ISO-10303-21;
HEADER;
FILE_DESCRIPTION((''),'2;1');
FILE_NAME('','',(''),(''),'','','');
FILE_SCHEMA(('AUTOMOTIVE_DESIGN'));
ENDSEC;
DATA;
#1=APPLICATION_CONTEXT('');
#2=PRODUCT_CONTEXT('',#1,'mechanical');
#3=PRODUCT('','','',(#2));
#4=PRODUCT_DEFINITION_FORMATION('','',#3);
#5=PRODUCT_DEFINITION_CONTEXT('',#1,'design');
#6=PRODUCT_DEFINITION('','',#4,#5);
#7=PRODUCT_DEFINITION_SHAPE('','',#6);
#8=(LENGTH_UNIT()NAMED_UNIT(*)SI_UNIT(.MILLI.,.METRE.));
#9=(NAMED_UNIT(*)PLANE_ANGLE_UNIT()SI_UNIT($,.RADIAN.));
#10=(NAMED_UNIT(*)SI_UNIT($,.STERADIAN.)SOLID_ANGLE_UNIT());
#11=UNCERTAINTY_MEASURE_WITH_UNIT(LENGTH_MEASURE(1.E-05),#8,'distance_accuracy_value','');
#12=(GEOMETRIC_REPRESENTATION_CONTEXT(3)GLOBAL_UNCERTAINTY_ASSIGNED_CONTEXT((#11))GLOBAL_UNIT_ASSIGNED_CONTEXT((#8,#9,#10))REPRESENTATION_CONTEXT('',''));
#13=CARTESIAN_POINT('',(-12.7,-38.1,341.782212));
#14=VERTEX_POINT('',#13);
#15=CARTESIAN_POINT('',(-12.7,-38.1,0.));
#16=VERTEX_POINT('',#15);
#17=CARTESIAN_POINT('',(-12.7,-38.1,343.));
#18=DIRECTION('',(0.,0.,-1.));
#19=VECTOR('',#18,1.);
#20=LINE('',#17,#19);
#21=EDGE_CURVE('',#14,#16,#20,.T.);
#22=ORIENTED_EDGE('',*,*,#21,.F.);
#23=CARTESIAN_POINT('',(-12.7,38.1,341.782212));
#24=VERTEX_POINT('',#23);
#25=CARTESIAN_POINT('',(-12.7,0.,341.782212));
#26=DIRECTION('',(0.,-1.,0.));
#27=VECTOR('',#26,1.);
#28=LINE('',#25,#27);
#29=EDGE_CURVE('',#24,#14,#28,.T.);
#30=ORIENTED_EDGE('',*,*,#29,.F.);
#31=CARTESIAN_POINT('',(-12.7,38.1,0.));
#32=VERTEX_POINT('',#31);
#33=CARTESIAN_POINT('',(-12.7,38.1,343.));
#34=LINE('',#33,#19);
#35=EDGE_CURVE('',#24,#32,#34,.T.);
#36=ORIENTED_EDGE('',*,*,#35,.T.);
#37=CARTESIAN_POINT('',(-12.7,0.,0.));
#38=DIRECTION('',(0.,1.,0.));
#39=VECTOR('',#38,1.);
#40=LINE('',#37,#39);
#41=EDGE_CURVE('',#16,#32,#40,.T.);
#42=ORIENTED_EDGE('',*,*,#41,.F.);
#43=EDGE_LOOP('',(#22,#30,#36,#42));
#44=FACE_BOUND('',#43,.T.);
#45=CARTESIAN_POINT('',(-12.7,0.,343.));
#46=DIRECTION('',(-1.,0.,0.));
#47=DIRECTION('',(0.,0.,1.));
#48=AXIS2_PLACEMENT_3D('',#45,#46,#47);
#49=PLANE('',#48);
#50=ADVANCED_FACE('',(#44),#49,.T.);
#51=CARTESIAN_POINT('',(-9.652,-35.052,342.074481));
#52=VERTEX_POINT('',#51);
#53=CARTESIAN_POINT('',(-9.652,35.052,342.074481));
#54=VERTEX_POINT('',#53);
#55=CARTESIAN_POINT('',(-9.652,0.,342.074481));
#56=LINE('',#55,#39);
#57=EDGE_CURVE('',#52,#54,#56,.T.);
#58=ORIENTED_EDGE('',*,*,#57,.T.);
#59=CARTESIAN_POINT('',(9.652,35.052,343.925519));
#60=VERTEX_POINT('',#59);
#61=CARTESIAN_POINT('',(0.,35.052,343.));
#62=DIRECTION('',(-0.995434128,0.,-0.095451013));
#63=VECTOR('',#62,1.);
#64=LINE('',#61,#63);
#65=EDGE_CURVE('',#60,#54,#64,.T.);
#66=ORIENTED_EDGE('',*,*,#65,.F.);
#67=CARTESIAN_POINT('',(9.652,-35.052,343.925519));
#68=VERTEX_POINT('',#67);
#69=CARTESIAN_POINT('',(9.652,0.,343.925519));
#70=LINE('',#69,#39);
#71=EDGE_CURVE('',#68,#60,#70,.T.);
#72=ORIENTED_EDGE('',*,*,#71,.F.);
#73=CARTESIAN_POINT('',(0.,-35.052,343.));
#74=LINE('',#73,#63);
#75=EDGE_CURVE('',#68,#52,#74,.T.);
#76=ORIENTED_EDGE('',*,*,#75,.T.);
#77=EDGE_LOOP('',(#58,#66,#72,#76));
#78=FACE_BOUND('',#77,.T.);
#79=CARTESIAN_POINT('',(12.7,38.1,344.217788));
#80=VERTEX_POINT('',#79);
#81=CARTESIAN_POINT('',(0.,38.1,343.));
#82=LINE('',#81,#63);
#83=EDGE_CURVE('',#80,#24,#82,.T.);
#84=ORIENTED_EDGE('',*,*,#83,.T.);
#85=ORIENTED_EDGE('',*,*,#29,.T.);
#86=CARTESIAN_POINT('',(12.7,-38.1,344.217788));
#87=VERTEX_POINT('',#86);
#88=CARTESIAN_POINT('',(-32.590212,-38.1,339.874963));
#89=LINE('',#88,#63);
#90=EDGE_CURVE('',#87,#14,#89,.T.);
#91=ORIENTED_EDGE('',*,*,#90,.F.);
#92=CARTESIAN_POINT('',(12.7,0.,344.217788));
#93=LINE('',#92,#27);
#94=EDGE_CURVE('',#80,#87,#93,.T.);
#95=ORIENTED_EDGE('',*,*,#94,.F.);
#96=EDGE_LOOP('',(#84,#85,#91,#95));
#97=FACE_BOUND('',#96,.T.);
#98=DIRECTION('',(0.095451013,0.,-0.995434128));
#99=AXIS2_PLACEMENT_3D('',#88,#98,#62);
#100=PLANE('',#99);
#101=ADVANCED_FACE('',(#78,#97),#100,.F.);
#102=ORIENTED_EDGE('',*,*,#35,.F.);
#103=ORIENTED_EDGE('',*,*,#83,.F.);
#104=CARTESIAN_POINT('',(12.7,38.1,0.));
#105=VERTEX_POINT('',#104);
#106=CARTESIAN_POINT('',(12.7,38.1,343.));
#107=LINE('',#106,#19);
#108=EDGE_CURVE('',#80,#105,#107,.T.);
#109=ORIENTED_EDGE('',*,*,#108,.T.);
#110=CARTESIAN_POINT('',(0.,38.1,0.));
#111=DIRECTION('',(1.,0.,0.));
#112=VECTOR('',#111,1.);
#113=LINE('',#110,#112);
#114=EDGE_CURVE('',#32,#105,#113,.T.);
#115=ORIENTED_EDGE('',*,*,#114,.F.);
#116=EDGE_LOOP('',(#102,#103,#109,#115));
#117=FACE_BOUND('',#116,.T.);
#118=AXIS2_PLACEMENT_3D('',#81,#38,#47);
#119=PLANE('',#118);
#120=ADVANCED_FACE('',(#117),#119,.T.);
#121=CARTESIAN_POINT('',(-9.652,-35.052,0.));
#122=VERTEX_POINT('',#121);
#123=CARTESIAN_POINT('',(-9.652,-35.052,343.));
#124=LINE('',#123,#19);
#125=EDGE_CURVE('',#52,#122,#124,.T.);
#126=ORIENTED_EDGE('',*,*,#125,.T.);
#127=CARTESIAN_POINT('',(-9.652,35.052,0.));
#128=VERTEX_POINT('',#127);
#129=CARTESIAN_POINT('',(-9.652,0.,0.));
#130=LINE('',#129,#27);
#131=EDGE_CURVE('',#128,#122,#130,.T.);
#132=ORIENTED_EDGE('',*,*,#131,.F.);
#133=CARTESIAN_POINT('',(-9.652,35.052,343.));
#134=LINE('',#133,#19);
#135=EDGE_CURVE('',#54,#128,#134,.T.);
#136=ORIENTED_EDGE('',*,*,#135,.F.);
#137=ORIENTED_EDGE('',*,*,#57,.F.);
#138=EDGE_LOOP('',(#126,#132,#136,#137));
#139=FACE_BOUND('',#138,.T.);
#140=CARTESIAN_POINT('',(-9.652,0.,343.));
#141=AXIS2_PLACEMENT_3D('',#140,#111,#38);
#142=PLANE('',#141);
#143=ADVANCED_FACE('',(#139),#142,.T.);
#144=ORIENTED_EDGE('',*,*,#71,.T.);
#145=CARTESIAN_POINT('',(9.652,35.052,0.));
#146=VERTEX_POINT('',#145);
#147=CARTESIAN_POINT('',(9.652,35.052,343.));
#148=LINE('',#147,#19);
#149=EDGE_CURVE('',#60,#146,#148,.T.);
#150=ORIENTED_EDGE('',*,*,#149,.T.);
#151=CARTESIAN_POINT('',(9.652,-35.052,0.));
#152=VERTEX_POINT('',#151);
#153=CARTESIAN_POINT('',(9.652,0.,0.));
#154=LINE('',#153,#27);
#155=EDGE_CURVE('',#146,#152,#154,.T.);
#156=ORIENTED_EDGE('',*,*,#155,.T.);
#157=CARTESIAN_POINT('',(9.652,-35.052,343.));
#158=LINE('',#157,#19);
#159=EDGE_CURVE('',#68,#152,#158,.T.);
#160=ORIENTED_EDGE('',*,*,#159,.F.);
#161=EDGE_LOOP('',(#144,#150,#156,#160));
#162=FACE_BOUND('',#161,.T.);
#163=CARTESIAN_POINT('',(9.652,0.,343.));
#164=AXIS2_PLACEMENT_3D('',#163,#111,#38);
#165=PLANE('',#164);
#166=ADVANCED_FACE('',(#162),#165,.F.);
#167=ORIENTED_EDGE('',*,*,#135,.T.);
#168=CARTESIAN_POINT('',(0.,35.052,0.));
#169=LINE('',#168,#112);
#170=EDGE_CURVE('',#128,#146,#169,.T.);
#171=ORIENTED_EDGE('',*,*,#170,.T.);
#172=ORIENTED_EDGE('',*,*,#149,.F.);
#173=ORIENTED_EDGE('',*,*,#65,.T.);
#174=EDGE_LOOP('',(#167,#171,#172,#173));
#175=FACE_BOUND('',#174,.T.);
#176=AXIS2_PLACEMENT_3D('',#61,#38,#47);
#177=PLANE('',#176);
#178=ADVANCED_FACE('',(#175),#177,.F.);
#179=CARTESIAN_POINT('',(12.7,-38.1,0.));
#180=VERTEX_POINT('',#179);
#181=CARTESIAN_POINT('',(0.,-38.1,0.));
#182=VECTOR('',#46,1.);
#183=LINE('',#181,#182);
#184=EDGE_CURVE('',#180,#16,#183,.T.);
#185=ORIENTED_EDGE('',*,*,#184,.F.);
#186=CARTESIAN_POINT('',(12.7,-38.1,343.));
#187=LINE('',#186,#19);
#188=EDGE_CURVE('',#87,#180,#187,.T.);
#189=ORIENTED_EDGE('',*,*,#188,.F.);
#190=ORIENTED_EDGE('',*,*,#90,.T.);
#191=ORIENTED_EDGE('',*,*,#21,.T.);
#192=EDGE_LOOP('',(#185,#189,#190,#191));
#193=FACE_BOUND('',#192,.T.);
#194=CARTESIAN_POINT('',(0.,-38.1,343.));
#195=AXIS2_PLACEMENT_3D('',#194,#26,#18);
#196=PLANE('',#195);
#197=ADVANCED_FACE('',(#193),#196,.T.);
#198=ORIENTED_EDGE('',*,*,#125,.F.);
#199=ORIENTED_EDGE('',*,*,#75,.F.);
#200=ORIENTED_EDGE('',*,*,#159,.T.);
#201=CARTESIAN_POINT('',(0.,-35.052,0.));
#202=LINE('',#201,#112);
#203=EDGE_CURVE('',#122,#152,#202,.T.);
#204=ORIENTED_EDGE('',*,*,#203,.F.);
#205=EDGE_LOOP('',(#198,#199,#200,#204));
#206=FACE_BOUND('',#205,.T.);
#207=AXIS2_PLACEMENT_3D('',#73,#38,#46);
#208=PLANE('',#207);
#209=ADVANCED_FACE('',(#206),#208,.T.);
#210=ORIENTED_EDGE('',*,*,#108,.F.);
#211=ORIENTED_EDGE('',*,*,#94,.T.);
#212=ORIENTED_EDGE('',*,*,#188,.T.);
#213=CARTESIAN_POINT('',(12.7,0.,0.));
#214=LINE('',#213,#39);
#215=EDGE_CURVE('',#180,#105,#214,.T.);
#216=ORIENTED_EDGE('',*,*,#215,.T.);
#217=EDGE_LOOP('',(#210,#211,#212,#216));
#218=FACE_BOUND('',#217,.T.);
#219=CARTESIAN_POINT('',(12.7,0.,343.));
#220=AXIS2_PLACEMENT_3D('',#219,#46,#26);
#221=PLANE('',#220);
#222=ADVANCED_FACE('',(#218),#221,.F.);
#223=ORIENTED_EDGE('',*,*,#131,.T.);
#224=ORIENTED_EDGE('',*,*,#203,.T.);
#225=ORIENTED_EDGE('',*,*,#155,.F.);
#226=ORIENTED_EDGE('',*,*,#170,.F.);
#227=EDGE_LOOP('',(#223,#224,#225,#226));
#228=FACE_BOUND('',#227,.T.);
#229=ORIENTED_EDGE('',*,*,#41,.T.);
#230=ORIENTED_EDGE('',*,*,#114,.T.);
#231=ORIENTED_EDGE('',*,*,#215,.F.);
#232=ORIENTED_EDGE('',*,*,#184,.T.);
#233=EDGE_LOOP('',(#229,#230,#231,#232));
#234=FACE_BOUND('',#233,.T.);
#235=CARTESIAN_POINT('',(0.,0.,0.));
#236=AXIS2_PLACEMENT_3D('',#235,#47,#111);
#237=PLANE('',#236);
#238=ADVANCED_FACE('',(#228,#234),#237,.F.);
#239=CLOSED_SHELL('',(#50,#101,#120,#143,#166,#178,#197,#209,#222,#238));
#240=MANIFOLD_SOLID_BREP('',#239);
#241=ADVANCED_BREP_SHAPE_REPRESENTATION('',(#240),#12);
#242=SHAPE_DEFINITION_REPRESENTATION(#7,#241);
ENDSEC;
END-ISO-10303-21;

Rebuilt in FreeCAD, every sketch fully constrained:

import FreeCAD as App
import Part
import Sketcher
Q = App.Units.Quantity


def add_polygon(sketch, points):
    """Adds a closed chain of lines whose ends are joined by coincident constraints."""
    first, n = sketch.GeometryCount, len(points)
    for a, b in zip(points, points[1:] + points[:1]):
        sketch.addGeometry(Part.LineSegment(App.Vector(*a, 0), App.Vector(*b, 0)), False)
    for i in range(n):
        sketch.addConstraint(Sketcher.Constraint("Coincident", first + i, 2, first + (i + 1) % n, 1))

doc = App.newDocument("Part")
body = doc.addObject("PartDesign::Body", "Body")

sketch1 = body.newObject("Sketcher::SketchObject", "Sketch")
sketch1.AttachmentSupport = (doc.getObject("XY_Plane"), [""])
sketch1.MapMode = "FlatFace"
add_polygon(sketch1, [(12.7, 38.1), (-12.7, 38.1), (-12.7, -38.1), (12.7, -38.1)])
add_polygon(sketch1, [(-9.652, 35.052), (9.652, 35.052), (9.652, -35.052), (-9.652, -35.052)])
sketch1.addConstraint(Sketcher.Constraint("Horizontal", 0))
sketch1.addConstraint(Sketcher.Constraint("Vertical", 1))
sketch1.addConstraint(Sketcher.Constraint("Horizontal", 2))
sketch1.addConstraint(Sketcher.Constraint("Vertical", 3))
sketch1.addConstraint(Sketcher.Constraint("Horizontal", 4))
sketch1.addConstraint(Sketcher.Constraint("Vertical", 5))
sketch1.addConstraint(Sketcher.Constraint("Horizontal", 6))
sketch1.addConstraint(Sketcher.Constraint("Vertical", 7))
sketch1.addConstraint(Sketcher.Constraint("Symmetric", 0, 2, 2, 2, -1, 1))
sketch1.addConstraint(Sketcher.Constraint("Symmetric", 4, 2, 6, 2, -1, 1))
sketch1.addConstraint(Sketcher.Constraint("DistanceX", 0, 2, 0, 1, Q("1 in")))
sketch1.addConstraint(Sketcher.Constraint("DistanceY", 1, 2, 1, 1, Q("3 in")))
sketch1.addConstraint(Sketcher.Constraint("DistanceX", 4, 1, 4, 2, Q("0.76 in")))
sketch1.addConstraint(Sketcher.Constraint("DistanceY", 5, 2, 5, 1, Q("2.76 in")))
pad1 = body.newObject("PartDesign::Pad", "Pad")
pad1.Profile = sketch1
pad1.Length = 343

sketch2 = body.newObject("Sketcher::SketchObject", "Sketch001")
sketch2.AttachmentSupport = (doc.getObject("XY_Plane"), [""])
sketch2.MapMode = "FlatFace"
sketch2.AttachmentOffset = App.Placement(App.Vector(0, 0, 343), App.Rotation())
add_polygon(sketch2, [(-12.7, 38.1), (-12.7, -38.1), (12.7, -38.1), (12.7, 38.1)])
add_polygon(sketch2, [(9.652, -35.052), (-9.652, -35.052), (-9.652, 35.052), (9.652, 35.052)])
sketch2.addConstraint(Sketcher.Constraint("Vertical", 0))
sketch2.addConstraint(Sketcher.Constraint("Horizontal", 1))
sketch2.addConstraint(Sketcher.Constraint("Vertical", 2))
sketch2.addConstraint(Sketcher.Constraint("Horizontal", 3))
sketch2.addConstraint(Sketcher.Constraint("Horizontal", 4))
sketch2.addConstraint(Sketcher.Constraint("Vertical", 5))
sketch2.addConstraint(Sketcher.Constraint("Horizontal", 6))
sketch2.addConstraint(Sketcher.Constraint("Vertical", 7))
sketch2.addConstraint(Sketcher.Constraint("Symmetric", 0, 2, 2, 2, -1, 1))
sketch2.addConstraint(Sketcher.Constraint("Symmetric", 4, 2, 6, 2, -1, 1))
sketch2.addConstraint(Sketcher.Constraint("DistanceX", 1, 1, 1, 2, Q("1 in")))
sketch2.addConstraint(Sketcher.Constraint("DistanceY", 0, 2, 0, 1, Q("3 in")))
sketch2.addConstraint(Sketcher.Constraint("DistanceX", 4, 2, 4, 1, Q("0.76 in")))
sketch2.addConstraint(Sketcher.Constraint("DistanceY", 5, 1, 5, 2, Q("2.76 in")))
pad2 = body.newObject("PartDesign::Pad", "Pad001")
pad2.Profile = sketch2
pad2.Length = 50

sketch3 = body.newObject("Sketcher::SketchObject", "Sketch002")
sketch3.AttachmentSupport = (doc.getObject("XZ_Plane"), [""])
sketch3.MapMode = "FlatFace"
sketch3.AttachmentOffset = App.Placement(App.Vector(0, 0, -1.5 * 25.4), App.Rotation())
add_polygon(sketch3, [(89.351881, 403.747168), (94.309709, 352.043248), (12.7, 344.217788), (-12.7, 341.782212), (-94.309709, 333.956752), (-99.267538, 385.660672)])
sketch3.addConstraint(Sketcher.Constraint("Perpendicular", 0, 1))
sketch3.addConstraint(Sketcher.Constraint("Parallel", 1, 2))
sketch3.addConstraint(Sketcher.Constraint("Parallel", 2, 3))
sketch3.addConstraint(Sketcher.Constraint("Perpendicular", 3, 4))
sketch3.addConstraint(Sketcher.Constraint("Perpendicular", 4, 5))
sketch3.addConstraint(Sketcher.Constraint("Equal", 1, 3))
sketch3.addConstraint(Sketcher.Constraint("DistanceX", 2, 2, 1, 2, Q("1 in")))
sketch3.addConstraint(Sketcher.Constraint("DistanceX", -1, 1, 1, 2, Q("0.5 in")))
sketch3.addConstraint(Sketcher.Constraint("Distance", 5, Q("189.484581 mm")))
sketch3.addConstraint(Sketcher.Constraint("DistanceX", -1, 1, 0, 2, Q("94.309709 mm")))
sketch3.addConstraint(Sketcher.Constraint("DistanceY", -1, 1, 1, 2, Q("344.217788 mm")))
sketch3.addConstraint(Sketcher.Constraint("DistanceX", -1, 1, 5, 2, Q("89.351881 mm")))
pocket1 = body.newObject("PartDesign::Pocket", "Pocket")
pocket1.Profile = sketch3
pocket1.Type = "ThroughAll"
pocket1.Midplane = True

doc.recompute()
